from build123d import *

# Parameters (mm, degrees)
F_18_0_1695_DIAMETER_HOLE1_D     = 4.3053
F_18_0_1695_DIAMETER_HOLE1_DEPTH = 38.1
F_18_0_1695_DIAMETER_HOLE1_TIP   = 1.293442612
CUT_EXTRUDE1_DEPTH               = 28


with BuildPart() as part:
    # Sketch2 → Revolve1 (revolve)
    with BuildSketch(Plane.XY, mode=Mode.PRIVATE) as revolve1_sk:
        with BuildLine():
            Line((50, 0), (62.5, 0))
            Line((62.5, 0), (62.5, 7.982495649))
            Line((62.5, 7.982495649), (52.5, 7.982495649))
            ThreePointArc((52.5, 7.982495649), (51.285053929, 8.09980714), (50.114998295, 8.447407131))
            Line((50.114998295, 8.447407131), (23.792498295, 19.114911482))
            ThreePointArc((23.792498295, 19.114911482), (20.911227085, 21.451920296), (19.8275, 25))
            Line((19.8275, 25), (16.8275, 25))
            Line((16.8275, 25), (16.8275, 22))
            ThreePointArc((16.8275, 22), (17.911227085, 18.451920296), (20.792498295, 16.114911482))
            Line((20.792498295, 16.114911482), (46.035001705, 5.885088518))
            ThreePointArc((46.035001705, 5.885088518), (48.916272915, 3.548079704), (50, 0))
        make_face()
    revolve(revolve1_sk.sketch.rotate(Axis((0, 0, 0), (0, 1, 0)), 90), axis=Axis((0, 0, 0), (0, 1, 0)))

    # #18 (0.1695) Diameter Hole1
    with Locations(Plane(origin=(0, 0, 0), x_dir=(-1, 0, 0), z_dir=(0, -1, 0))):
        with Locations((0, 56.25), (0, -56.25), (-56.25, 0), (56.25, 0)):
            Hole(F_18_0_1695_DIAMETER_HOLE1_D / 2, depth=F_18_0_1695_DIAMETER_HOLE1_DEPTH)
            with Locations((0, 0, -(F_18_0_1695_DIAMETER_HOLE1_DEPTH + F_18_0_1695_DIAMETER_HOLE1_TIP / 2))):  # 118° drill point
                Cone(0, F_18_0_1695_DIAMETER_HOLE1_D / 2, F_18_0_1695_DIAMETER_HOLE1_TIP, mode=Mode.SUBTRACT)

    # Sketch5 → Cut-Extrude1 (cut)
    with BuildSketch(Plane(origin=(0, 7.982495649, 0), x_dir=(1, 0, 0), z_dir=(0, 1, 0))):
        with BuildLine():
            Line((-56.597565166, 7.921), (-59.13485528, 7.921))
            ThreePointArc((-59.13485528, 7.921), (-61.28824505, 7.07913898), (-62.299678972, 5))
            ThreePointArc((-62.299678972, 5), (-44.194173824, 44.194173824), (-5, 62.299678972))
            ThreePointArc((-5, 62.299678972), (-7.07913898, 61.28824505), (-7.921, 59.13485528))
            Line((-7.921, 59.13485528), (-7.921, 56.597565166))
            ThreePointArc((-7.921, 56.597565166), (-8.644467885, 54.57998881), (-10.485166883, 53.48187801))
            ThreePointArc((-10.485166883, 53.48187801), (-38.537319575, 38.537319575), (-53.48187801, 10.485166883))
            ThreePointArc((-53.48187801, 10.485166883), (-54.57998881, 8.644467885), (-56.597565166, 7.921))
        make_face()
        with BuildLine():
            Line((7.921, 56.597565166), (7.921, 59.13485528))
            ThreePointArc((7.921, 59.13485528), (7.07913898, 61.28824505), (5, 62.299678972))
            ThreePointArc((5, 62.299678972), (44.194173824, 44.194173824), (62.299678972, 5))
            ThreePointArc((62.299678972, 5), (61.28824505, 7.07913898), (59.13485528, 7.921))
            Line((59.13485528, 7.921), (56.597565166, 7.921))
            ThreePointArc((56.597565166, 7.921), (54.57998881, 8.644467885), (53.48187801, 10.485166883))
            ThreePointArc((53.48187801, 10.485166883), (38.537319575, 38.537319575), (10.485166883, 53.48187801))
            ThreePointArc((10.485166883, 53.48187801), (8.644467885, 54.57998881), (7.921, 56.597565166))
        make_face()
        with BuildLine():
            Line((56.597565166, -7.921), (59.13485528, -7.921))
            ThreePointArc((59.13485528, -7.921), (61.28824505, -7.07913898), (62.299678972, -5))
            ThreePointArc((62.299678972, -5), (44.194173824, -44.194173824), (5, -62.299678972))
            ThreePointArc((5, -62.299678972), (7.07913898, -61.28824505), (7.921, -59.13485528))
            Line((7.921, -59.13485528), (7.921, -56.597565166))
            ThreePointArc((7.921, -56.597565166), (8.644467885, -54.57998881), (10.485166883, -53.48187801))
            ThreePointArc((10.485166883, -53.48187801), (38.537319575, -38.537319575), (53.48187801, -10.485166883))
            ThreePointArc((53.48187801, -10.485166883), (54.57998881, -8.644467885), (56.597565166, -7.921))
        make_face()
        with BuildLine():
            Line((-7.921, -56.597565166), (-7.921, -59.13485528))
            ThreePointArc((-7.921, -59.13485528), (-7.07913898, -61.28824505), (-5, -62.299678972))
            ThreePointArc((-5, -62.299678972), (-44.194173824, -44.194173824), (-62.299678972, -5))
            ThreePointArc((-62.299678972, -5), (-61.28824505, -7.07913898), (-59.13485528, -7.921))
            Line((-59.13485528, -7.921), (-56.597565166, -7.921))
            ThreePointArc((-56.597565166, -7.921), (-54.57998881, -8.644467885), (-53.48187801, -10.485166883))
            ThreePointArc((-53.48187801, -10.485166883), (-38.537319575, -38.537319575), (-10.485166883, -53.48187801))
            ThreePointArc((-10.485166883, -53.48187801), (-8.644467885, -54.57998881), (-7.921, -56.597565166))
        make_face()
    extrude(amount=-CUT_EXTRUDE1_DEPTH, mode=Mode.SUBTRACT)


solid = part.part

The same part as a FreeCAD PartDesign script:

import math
import FreeCAD as App
import Part
import Sketcher
from FreeCAD import Vector
Q = App.Units.Quantity

doc = App.newDocument("Part")
body = doc.addObject("PartDesign::Body", "Body")

sketch1 = doc.addObject("Sketcher::SketchObject", "Sketch")
body.addObject(sketch1)
sketch1.AttachmentSupport = (doc.XY_Plane, [""])
sketch1.MapMode = "FlatFace"
sketch1.addGeometry([
    Part.LineSegment(Vector(50, 0, 0), Vector(62.5, 0, 0)),
    Part.LineSegment(Vector(62.5, 0, 0), Vector(62.5, 8, 0)),
    Part.LineSegment(Vector(62.5, 8, 0), Vector(52.5, 8, 0)),
    Part.ArcOfCircle(Part.Circle(Vector(52.5, 14.3, 0), Vector(0, 0, 1), 6.3), math.radians(-112), math.radians(-90)),
    Part.LineSegment(Vector(50.1, 8.4, 0), Vector(23.8, 19.1, 0)),
    Part.ArcOfCircle(Part.Circle(Vector(26.2, 25, 0), Vector(0, 0, 1), 6.3), math.radians(180), math.radians(248)),
    Part.LineSegment(Vector(19.8, 25, 0), Vector(16.8, 25, 0)),
    Part.LineSegment(Vector(16.8, 25, 0), Vector(16.8, 22, 0)),
    Part.ArcOfCircle(Part.Circle(Vector(23.2, 22, 0), Vector(0, 0, 1), 6.3), math.radians(180), math.radians(248)),
    Part.LineSegment(Vector(20.8, 16.1, 0), Vector(46, 5.9, 0)),
    Part.ArcOfCircle(Part.Circle(Vector(43.7, 0, 0), Vector(0, 0, 1), 6.3), math.radians(0), math.radians(68)),
], False)
sketch1.addConstraint([
    Sketcher.Constraint("Coincident", 0, 2, 1, 1),
    Sketcher.Constraint("Coincident", 1, 2, 2, 1),
    Sketcher.Constraint("Tangent", 2, 2, 3, 2),
    Sketcher.Constraint("Tangent", 3, 1, 4, 1),
    Sketcher.Constraint("Tangent", 4, 2, 5, 2),
    Sketcher.Constraint("Coincident", 5, 1, 6, 1),
    Sketcher.Constraint("Coincident", 6, 2, 7, 1),
    Sketcher.Constraint("Tangent", 7, 2, 8, 1),
    Sketcher.Constraint("Tangent", 8, 2, 9, 1),
    Sketcher.Constraint("Tangent", 9, 2, 10, 2),
    Sketcher.Constraint("Coincident", 10, 1, 0, 1),
    Sketcher.Constraint("Horizontal", 0),
    Sketcher.Constraint("Vertical", 1),
    Sketcher.Constraint("Horizontal", 2),
    Sketcher.Constraint("Horizontal", 6),
    Sketcher.Constraint("Vertical", 7),
    Sketcher.Constraint("Equal", 3, 5),
    Sketcher.Constraint("Equal", 5, 8),
    Sketcher.Constraint("Equal", 8, 10),
    Sketcher.Constraint("PointOnObject", 10, 3, -1),
    Sketcher.Constraint("PointOnObject", 0, 2, -1),
    Sketcher.Constraint("Parallel", 4, 9),
    Sketcher.Constraint("Equal", 6, 7),
    Sketcher.Constraint("DistanceX", 2, 2, 2, 1, Q("10 mm")),
    Sketcher.Constraint("DistanceX", 6, 2, 6, 1, Q("3 mm")),
    Sketcher.Constraint("Radius", 3, Q("6.35 mm")),
    Sketcher.Constraint("DistanceX", 0, 1, 0, 2, Q("12.5 mm")),
    Sketcher.Constraint("DistanceY", -1, 1, 5, 3, Q("25 mm")),
    Sketcher.Constraint("DistanceY", -1, 1, 8, 3, Q("22 mm")),
    Sketcher.Constraint("DistanceX", -1, 1, 10, 1, Q("50 mm")),
    Sketcher.Constraint("DistanceX", -1, 1, 3, 1, Q("50.114998 mm")),
])
revolution = doc.addObject("PartDesign::Revolution", "Revolution")
body.addObject(revolution)
revolution.Profile = sketch1
revolution.ReferenceAxis = (sketch1, ["V_Axis"])
revolution.Angle = 360

sketch2 = doc.addObject("Sketcher::SketchObject", "Sketch001")
body.addObject(sketch2)
sketch2.AttachmentSupport = (doc.XZ_Plane, [""])
sketch2.MapMode = "FlatFace"
sketch2.addGeometry([
    Part.Circle(Vector(0, -56.2, 0), Vector(0, 0, 1), 2.2),
    Part.Circle(Vector(0, 56.2, 0), Vector(0, 0, 1), 2.2),
    Part.Circle(Vector(56.2, 0, 0), Vector(0, 0, 1), 2.2),
    Part.Circle(Vector(-56.2, 0, 0), Vector(0, 0, 1), 2.2),
], False)
sketch2.addConstraint([
    Sketcher.Constraint("Equal", 0, 1),
    Sketcher.Constraint("Equal", 1, 2),
    Sketcher.Constraint("Equal", 2, 3),
    Sketcher.Constraint("Symmetric", 0, 3, 1, 3, -1, 1),
    Sketcher.Constraint("Symmetric", 2, 3, 3, 3, -1, 1),
    Sketcher.Constraint("PointOnObject", 0, 3, -2),
    Sketcher.Constraint("PointOnObject", 2, 3, -1),
    Sketcher.Constraint("Diameter", 0, Q("4.3053 mm")),
    Sketcher.Constraint("DistanceY", 0, 3, 1, 3, Q("112.5 mm")),
    Sketcher.Constraint("DistanceX", 3, 3, 2, 3, Q("112.5 mm")),
])
doc.recompute()
hole = doc.addObject("PartDesign::Hole", "Hole")
body.addObject(hole)
hole.Profile = sketch2
hole.ThreadType = "None"
hole.Diameter = 4.3053
hole.DepthType = "Dimension"
hole.Depth = 38.1
hole.DrillPoint = "Angled"
hole.DrillPointAngle = 118

sketch3 = doc.addObject("Sketcher::SketchObject", "Sketch002")
body.addObject(sketch3)
sketch3.AttachmentSupport = (doc.XZ_Plane, [""])
sketch3.MapMode = "FlatFace"
sketch3.AttachmentOffset = App.Placement(Vector(0, 0, -7.982496), App.Rotation())
sketch3.addGeometry([
    Part.LineSegment(Vector(-59.1, -7.9, 0), Vector(-56.6, -7.9, 0)),
    Part.ArcOfCircle(Part.Circle(Vector(-56.6, -11.1, 0), Vector(0, 0, 1), 3.2), math.radians(11), math.radians(90)),
    Part.ArcOfCircle(Part.Circle(Vector(0, 0, 0), Vector(0, 0, 1), 54.5), math.radians(-169), math.radians(-101)),
    Part.ArcOfCircle(Part.Circle(Vector(-11.1, -56.6, 0), Vector(0, 0, 1), 3.2), math.radians(0), math.radians(79)),
    Part.LineSegment(Vector(-7.9, -56.6, 0), Vector(-7.9, -59.1, 0)),
    Part.ArcOfCircle(Part.Circle(Vector(-4.7, -59.1, 0), Vector(0, 0, 1), 3.2), math.radians(180), math.radians(265)),
    Part.ArcOfCircle(Part.Circle(Vector(0, 0, 0), Vector(0, 0, 1), 62.5), math.radians(-175), math.radians(-95)),
    Part.ArcOfCircle(Part.Circle(Vector(-59.1, -4.7, 0), Vector(0, 0, 1), 3.2), math.radians(-175), math.radians(-90)),
    Part.LineSegment(Vector(7.9, -59.1, 0), Vector(7.9, -56.6, 0)),
    Part.ArcOfCircle(Part.Circle(Vector(11.1, -56.6, 0), Vector(0, 0, 1), 3.2), math.radians(101), math.radians(180)),
    Part.ArcOfCircle(Part.Circle(Vector(0, 0, 0), Vector(0, 0, 1), 54.5), math.radians(-79), math.radians(-11)),
    Part.ArcOfCircle(Part.Circle(Vector(56.6, -11.1, 0), Vector(0, 0, 1), 3.2), math.radians(90), math.radians(169)),
    Part.LineSegment(Vector(56.6, -7.9, 0), Vector(59.1, -7.9, 0)),
    Part.ArcOfCircle(Part.Circle(Vector(59.1, -4.7, 0), Vector(0, 0, 1), 3.2), math.radians(-90), math.radians(-5)),
    Part.ArcOfCircle(Part.Circle(Vector(0, 0, 0), Vector(0, 0, 1), 62.5), math.radians(-85), math.radians(-5)),
    Part.ArcOfCircle(Part.Circle(Vector(4.7, -59.1, 0), Vector(0, 0, 1), 3.2), math.radians(-85), math.radians(0)),
    Part.LineSegment(Vector(59.1, 7.9, 0), Vector(56.6, 7.9, 0)),
    Part.ArcOfCircle(Part.Circle(Vector(56.6, 11.1, 0), Vector(0, 0, 1), 3.2), math.radians(-169), math.radians(-90)),
    Part.ArcOfCircle(Part.Circle(Vector(0, 0, 0), Vector(0, 0, 1), 54.5), math.radians(11), math.radians(79)),
    Part.ArcOfCircle(Part.Circle(Vector(11.1, 56.6, 0), Vector(0, 0, 1), 3.2), math.radians(-180), math.radians(-101)),
    Part.LineSegment(Vector(7.9, 56.6, 0), Vector(7.9, 59.1, 0)),
    Part.ArcOfCircle(Part.Circle(Vector(4.7, 59.1, 0), Vector(0, 0, 1), 3.2), math.radians(0), math.radians(85)),
    Part.ArcOfCircle(Part.Circle(Vector(0, 0, 0), Vector(0, 0, 1), 62.5), math.radians(5), math.radians(85)),
    Part.ArcOfCircle(Part.Circle(Vector(59.1, 4.7, 0), Vector(0, 0, 1), 3.2), math.radians(5), math.radians(90)),
    Part.LineSegment(Vector(-7.9, 59.1, 0), Vector(-7.9, 56.6, 0)),
    Part.ArcOfCircle(Part.Circle(Vector(-11.1, 56.6, 0), Vector(0, 0, 1), 3.2), math.radians(-79), math.radians(0)),
    Part.ArcOfCircle(Part.Circle(Vector(0, 0, 0), Vector(0, 0, 1), 54.5), math.radians(101), math.radians(169)),
    Part.ArcOfCircle(Part.Circle(Vector(-56.6, 11.1, 0), Vector(0, 0, 1), 3.2), math.radians(-90), math.radians(-11)),
    Part.LineSegment(Vector(-56.6, 7.9, 0), Vector(-59.1, 7.9, 0)),
    Part.ArcOfCircle(Part.Circle(Vector(-59.1, 4.7, 0), Vector(0, 0, 1), 3.2), math.radians(90), math.radians(175)),
    Part.ArcOfCircle(Part.Circle(Vector(0, 0, 0), Vector(0, 0, 1), 62.5), math.radians(95), math.radians(175)),
    Part.ArcOfCircle(Part.Circle(Vector(-4.7, 59.1, 0), Vector(0, 0, 1), 3.2), math.radians(95), math.radians(180)),
], False)
sketch3.addConstraint([
    Sketcher.Constraint("Tangent", 0, 2, 1, 2),
    Sketcher.Constraint("Tangent", 1, 1, 2, 1),
    Sketcher.Constraint("Tangent", 2, 2, 3, 2),
    Sketcher.Constraint("Tangent", 3, 1, 4, 1),
    Sketcher.Constraint("Tangent", 4, 2, 5, 1),
    Sketcher.Constraint("Tangent", 5, 2, 6, 2),
    Sketcher.Constraint("Tangent", 6, 1, 7, 1),
    Sketcher.Constraint("Tangent", 7, 2, 0, 1),
    Sketcher.Constraint("Tangent", 8, 2, 9, 2),
    Sketcher.Constraint("Tangent", 9, 1, 10, 1),
    Sketcher.Constraint("Tangent", 10, 2, 11, 2),
    Sketcher.Constraint("Tangent", 11, 1, 12, 1),
    Sketcher.Constraint("Tangent", 12, 2, 13, 1),
    Sketcher.Constraint("Tangent", 13, 2, 14, 2),
    Sketcher.Constraint("Tangent", 14, 1, 15, 1),
    Sketcher.Constraint("Tangent", 15, 2, 8, 1),
    Sketcher.Constraint("Tangent", 16, 2, 17, 2),
    Sketcher.Constraint("Tangent", 17, 1, 18, 1),
    Sketcher.Constraint("Tangent", 18, 2, 19, 2),
    Sketcher.Constraint("Tangent", 19, 1, 20, 1),
    Sketcher.Constraint("Tangent", 20, 2, 21, 1),
    Sketcher.Constraint("Tangent", 21, 2, 22, 2),
    Sketcher.Constraint("Tangent", 22, 1, 23, 1),
    Sketcher.Constraint("Tangent", 23, 2, 16, 1),
    Sketcher.Constraint("Tangent", 24, 2, 25, 2),
    Sketcher.Constraint("Tangent", 25, 1, 26, 1),
    Sketcher.Constraint("Tangent", 26, 2, 27, 2),
    Sketcher.Constraint("Tangent", 27, 1, 28, 1),
    Sketcher.Constraint("Tangent", 28, 2, 29, 1),
    Sketcher.Constraint("Tangent", 29, 2, 30, 2),
    Sketcher.Constraint("Tangent", 30, 1, 31, 1),
    Sketcher.Constraint("Tangent", 31, 2, 24, 1),
    Sketcher.Constraint("Horizontal", 0),
    Sketcher.Constraint("Vertical", 4),
    Sketcher.Constraint("Vertical", 8),
    Sketcher.Constraint("Horizontal", 12),
    Sketcher.Constraint("Horizontal", 16),
    Sketcher.Constraint("Vertical", 20),
    Sketcher.Constraint("Vertical", 24),
    Sketcher.Constraint("Horizontal", 28),
    Sketcher.Constraint("Coincident", 2, 3, -1, 1),
    Sketcher.Constraint("Coincident", 6, 3, -1, 1),
    Sketcher.Constraint("Coincident", 10, 3, -1, 1),
    Sketcher.Constraint("Coincident", 14, 3, -1, 1),
    Sketcher.Constraint("Coincident", 18, 3, -1, 1),
    Sketcher.Constraint("Coincident", 22, 3, -1, 1),
    Sketcher.Constraint("Coincident", 26, 3, -1, 1),
    Sketcher.Constraint("Coincident", 30, 3, -1, 1),
    Sketcher.Constraint("Equal", 1, 3),
    Sketcher.Constraint("Equal", 3, 5),
    Sketcher.Constraint("Equal", 5, 7),
    Sketcher.Constraint("Equal", 7, 9),
    Sketcher.Constraint("Equal", 2, 10),
    Sketcher.Constraint("Equal", 9, 11),
    Sketcher.Constraint("Equal", 11, 13),
    Sketcher.Constraint("Equal", 6, 14),
    Sketcher.Constraint("Equal", 13, 15),
    Sketcher.Constraint("Equal", 15, 17),
    Sketcher.Constraint("Equal", 10, 18),
    Sketcher.Constraint("Equal", 17, 19),
    Sketcher.Constraint("Equal", 19, 21),
    Sketcher.Constraint("Equal", 14, 22),
    Sketcher.Constraint("Equal", 21, 23),
    Sketcher.Constraint("Equal", 23, 25),
    Sketcher.Constraint("Equal", 18, 26),
    Sketcher.Constraint("Equal", 25, 27),
    Sketcher.Constraint("Equal", 27, 29),
    Sketcher.Constraint("Equal", 22, 30),
    Sketcher.Constraint("Equal", 29, 31),
    Sketcher.Constraint("Horizontal", 3, 3, 9, 3),
    Sketcher.Constraint("Horizontal", 1, 3, 11, 3),
    Sketcher.Constraint("Horizontal", 19, 3, 25, 3),
    Sketcher.Constraint("Horizontal", 17, 3, 27, 3),
    Sketcher.Constraint("Vertical", 11, 3, 17, 3),
    Sketcher.Constraint("Vertical", 9, 3, 19, 3),
    Sketcher.Constraint("Equal", 28, 4),
    Sketcher.Constraint("Radius", 2, Q("54.5 mm")),
    Sketcher.Constraint("Radius", 6, Q("62.5 mm")),
    Sketcher.Constraint("DistanceX", 5, 2, -1, 1, Q("5 mm")),
    Sketcher.Constraint("Radius", 1, Q("3.175 mm")),
])
pocket1 = doc.addObject("PartDesign::Pocket", "Pocket")
body.addObject(pocket1)
pocket1.Profile = sketch3
pocket1.Length = 28
pocket1.Reversed = True

doc.recompute()
